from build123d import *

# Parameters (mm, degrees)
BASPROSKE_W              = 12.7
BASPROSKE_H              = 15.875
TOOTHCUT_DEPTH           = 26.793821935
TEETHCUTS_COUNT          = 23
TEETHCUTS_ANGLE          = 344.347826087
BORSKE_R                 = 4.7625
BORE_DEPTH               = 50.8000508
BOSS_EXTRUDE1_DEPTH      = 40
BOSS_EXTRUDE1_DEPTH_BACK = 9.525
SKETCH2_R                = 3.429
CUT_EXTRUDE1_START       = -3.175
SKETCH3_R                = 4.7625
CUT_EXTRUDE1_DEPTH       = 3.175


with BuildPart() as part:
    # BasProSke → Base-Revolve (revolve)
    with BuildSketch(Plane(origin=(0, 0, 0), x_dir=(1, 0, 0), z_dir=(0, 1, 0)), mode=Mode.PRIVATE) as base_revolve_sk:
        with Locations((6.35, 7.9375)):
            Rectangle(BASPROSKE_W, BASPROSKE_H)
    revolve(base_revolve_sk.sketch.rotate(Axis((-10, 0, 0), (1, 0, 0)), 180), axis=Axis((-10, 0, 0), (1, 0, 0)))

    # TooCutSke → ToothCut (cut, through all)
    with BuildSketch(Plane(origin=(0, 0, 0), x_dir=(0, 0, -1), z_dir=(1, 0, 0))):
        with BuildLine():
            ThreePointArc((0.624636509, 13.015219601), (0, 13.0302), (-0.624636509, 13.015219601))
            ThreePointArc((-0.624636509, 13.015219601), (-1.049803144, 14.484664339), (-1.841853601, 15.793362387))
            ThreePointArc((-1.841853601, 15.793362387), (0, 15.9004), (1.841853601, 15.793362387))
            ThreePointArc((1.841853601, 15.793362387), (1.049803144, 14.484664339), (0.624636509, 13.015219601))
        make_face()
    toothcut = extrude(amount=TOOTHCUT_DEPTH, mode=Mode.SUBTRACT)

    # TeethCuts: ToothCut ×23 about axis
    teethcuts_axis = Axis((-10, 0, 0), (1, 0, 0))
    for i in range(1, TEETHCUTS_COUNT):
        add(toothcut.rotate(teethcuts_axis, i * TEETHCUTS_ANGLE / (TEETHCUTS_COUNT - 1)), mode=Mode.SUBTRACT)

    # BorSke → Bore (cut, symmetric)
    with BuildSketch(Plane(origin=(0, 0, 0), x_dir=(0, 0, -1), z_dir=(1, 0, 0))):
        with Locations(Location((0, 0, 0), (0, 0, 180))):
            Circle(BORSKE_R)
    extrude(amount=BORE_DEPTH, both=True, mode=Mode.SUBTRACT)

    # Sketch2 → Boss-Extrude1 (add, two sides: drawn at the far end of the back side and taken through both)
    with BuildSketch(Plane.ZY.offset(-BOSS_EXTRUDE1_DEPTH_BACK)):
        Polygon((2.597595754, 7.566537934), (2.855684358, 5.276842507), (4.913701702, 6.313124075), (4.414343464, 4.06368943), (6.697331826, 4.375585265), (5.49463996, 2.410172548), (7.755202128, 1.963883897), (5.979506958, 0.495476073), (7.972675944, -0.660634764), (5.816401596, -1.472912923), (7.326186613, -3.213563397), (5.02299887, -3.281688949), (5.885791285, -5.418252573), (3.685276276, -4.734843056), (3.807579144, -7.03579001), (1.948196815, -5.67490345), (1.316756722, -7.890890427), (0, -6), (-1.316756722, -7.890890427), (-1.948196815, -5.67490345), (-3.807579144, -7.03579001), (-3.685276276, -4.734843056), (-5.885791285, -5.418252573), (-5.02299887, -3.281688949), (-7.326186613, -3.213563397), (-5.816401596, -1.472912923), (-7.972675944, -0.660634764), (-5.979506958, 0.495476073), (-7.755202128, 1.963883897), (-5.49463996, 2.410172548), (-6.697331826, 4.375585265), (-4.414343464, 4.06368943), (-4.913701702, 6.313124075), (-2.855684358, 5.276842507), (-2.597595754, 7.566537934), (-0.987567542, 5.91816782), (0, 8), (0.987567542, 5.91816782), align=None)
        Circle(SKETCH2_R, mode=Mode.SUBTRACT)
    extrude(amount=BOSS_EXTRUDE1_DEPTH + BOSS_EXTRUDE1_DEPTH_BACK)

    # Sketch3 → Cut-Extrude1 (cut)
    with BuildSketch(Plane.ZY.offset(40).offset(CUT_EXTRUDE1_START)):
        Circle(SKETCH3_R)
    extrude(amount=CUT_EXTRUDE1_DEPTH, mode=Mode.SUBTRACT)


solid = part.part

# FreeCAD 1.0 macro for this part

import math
import FreeCAD as App
import Part
import Sketcher
from FreeCAD import Vector
Q = App.Units.Quantity

doc = App.newDocument("Part")
params = doc.addObject("Spreadsheet::Sheet", "Params")
for row, (alias, value) in enumerate([
    ("sketch1_width", "0.5 in"),
    ("sketch1_height", "0.625 in"),
    ("revolution_angle", "360 deg"),
    ("sketch2_radius", "0.23 in"),
    ("sketch2_radius2", "0.513 in"),
    ("sketch2_radius3", "0.626 in"),
    ("sketch3_diameter", "0.375 in"),
    ("pocket2_length", "101.600102 mm"),
    ("sketch4_diameter", "0.27 in"),
    ("pad1_length", "40 mm"),
    ("pad1_length2", "0.375 in"),
    ("sketch5_diameter", "0.375 in"),
    ("pocket3_length", "0.125 in"),
], start=1):
    params.set(f"A{row}", alias)
    params.set(f"B{row}", "=" + value)
    params.setAlias(f"B{row}", alias)

body = doc.addObject("PartDesign::Body", "Body")

# Sketch on XZ plane
sketch1 = body.newObject("Sketcher::SketchObject", "Sketch")
sketch1.AttachmentSupport = (doc.getObject("XZ_Plane"), [""])
sketch1.MapMode = "FlatFace"
sketch1.addGeometry(Part.LineSegment(Vector(0, -16, 0), Vector(0, 0, 0)), False)
sketch1.addGeometry(Part.LineSegment(Vector(0, 0, 0), Vector(13, 0, 0)), False)
sketch1.addGeometry(Part.LineSegment(Vector(13, 0, 0), Vector(13, -16, 0)), False)
sketch1.addGeometry(Part.LineSegment(Vector(13, -16, 0), Vector(0, -16, 0)), False)
sketch1.addConstraint(Sketcher.Constraint("Coincident", 0, 2, 1, 1))
sketch1.addConstraint(Sketcher.Constraint("Coincident", 1, 2, 2, 1))
sketch1.addConstraint(Sketcher.Constraint("Coincident", 2, 2, 3, 1))
sketch1.addConstraint(Sketcher.Constraint("Coincident", 3, 2, 0, 1))
sketch1.addConstraint(Sketcher.Constraint("Vertical", 0))
sketch1.addConstraint(Sketcher.Constraint("Horizontal", 1))
sketch1.addConstraint(Sketcher.Constraint("Vertical", 2))
sketch1.addConstraint(Sketcher.Constraint("Horizontal", 3))
sketch1.addConstraint(Sketcher.Constraint("Coincident", 0, 2, -1, 1))
sketch1.addConstraint(Sketcher.Constraint("DistanceX", 1, 1, 1, 2, Q("0.5 in")))
sketch1.addConstraint(Sketcher.Constraint("DistanceY", 0, 1, 0, 2, Q("0.625 in")))
sketch1.setExpression("Constraints[9]", "Params.sketch1_width")
sketch1.setExpression("Constraints[10]", "Params.sketch1_height")
revolution = body.newObject("PartDesign::Revolution", "Revolution")
revolution.Profile = sketch1
revolution.ReferenceAxis = (sketch1, ["H_Axis"])
revolution.setExpression("Angle", "Params.revolution_angle")

# Sketch on YZ plane
sketch2 = body.newObject("Sketcher::SketchObject", "Sketch001")
sketch2.AttachmentSupport = (doc.getObject("YZ_Plane"), [""])
sketch2.MapMode = "FlatFace"
sketch2.addGeometry(Part.ArcOfCircle(Part.Circle(Vector(0, 0, 0), Vector(0, 0, 1), 13), math.radians(-2.75), math.radians(2.75)), False)
sketch2.addGeometry(Part.ArcOfCircle(Part.Circle(Vector(12.1, -6.4, 0), Vector(0, 0, 1), 5.8), math.radians(51), math.radians(81)), False)
sketch2.addGeometry(Part.ArcOfCircle(Part.Circle(Vector(0, 0, 0), Vector(0, 0, 1), 15.9), math.radians(-6.65), math.radians(6.65)), False)
sketch2.addGeometry(Part.ArcOfCircle(Part.Circle(Vector(12.1, 6.4, 0), Vector(0, 0, 1), 5.8), math.radians(-81), math.radians(-51)), False)
sketch2.addConstraint(Sketcher.Constraint("Coincident", 0, 1, 1, 2))
sketch2.addConstraint(Sketcher.Constraint("Coincident", 1, 1, 2, 1))
sketch2.addConstraint(Sketcher.Constraint("Coincident", 2, 2, 3, 2))
sketch2.addConstraint(Sketcher.Constraint("Coincident", 3, 1, 0, 2))
sketch2.addConstraint(Sketcher.Constraint("Coincident", 0, 3, -1, 1))
sketch2.addConstraint(Sketcher.Constraint("Coincident", 2, 3, -1, 1))
sketch2.addConstraint(Sketcher.Constraint("Equal", 1, 3))
sketch2.addConstraint(Sketcher.Constraint("Symmetric", 1, 3, 3, 3, -1))
sketch2.addConstraint(Sketcher.Constraint("Radius", 1, Q("0.23 in")))
sketch2.addConstraint(Sketcher.Constraint("Radius", 0, Q("0.513 in")))
sketch2.addConstraint(Sketcher.Constraint("Radius", 2, Q("0.626 in")))
sketch2.addConstraint(Sketcher.Constraint("DistanceY", 1, 3, 0, 1, 5.776098))
sketch2.addConstraint(Sketcher.Constraint("DistanceX", -1, 1, 0, 1, 13.01522))
sketch2.setExpression("Constraints[8]", "Params.sketch2_radius")
sketch2.setExpression("Constraints[9]", "Params.sketch2_radius2")
sketch2.setExpression("Constraints[10]", "Params.sketch2_radius3")
pocket1 = body.newObject("PartDesign::Pocket", "Pocket")
pocket1.Profile = sketch2
pocket1.Type = "ThroughAll"
pocket1.Reversed = True
doc.recompute()

polarpattern = body.newObject("PartDesign::PolarPattern", "PolarPattern")
polarpattern.Originals = [pocket1]
polarpattern.Axis = (doc.getObject("X_Axis"), [""])
polarpattern.Angle = 360
polarpattern.Occurrences = 23
body.Tip = polarpattern

# Sketch on YZ plane
sketch3 = body.newObject("Sketcher::SketchObject", "Sketch002")
sketch3.AttachmentSupport = (doc.getObject("YZ_Plane"), [""])
sketch3.MapMode = "FlatFace"
sketch3.addGeometry(Part.Circle(Vector(0, 0, 0), Vector(0, 0, 1), 4.8), False)
sketch3.addConstraint(Sketcher.Constraint("Coincident", 0, 3, -1, 1))
sketch3.addConstraint(Sketcher.Constraint("Diameter", 0, Q("0.375 in")))
sketch3.setExpression("Constraints[1]", "Params.sketch3_diameter")
pocket2 = body.newObject("PartDesign::Pocket", "Pocket001")
pocket2.Profile = sketch3
pocket2.setExpression("Length", "Params.pocket2_length")
pocket2.Midplane = True

# Sketch on YZ plane
sketch4 = body.newObject("Sketcher::SketchObject", "Sketch003")
sketch4.AttachmentSupport = (doc.getObject("YZ_Plane"), [""])
sketch4.MapMode = "FlatFace"
sketch4.addGeometry(Part.LineSegment(Vector(5.276843, 2.855684, 0), Vector(7.566538, 2.597596, 0)), False)
sketch4.addGeometry(Part.LineSegment(Vector(7.566538, 2.597596, 0), Vector(5.918168, 0.987568, 0)), False)
sketch4.addGeometry(Part.LineSegment(Vector(5.918168, 0.987568, 0), Vector(8, 0, 0)), False)
sketch4.addGeometry(Part.LineSegment(Vector(8, 0, 0), Vector(5.918168, -0.987568, 0)), False)
sketch4.addGeometry(Part.LineSegment(Vector(5.918168, -0.987568, 0), Vector(7.566538, -2.597596, 0)), False)
sketch4.addGeometry(Part.LineSegment(Vector(7.566538, -2.597596, 0), Vector(5.276843, -2.855684, 0)), False)
sketch4.addGeometry(Part.LineSegment(Vector(5.276843, -2.855684, 0), Vector(6.313124, -4.913702, 0)), False)
sketch4.addGeometry(Part.LineSegment(Vector(6.313124, -4.913702, 0), Vector(4.063689, -4.414343, 0)), False)
sketch4.addGeometry(Part.LineSegment(Vector(4.063689, -4.414343, 0), Vector(4.375585, -6.697332, 0)), False)
sketch4.addGeometry(Part.LineSegment(Vector(4.375585, -6.697332, 0), Vector(2.410173, -5.49464, 0)), False)
sketch4.addGeometry(Part.LineSegment(Vector(2.410173, -5.49464, 0), Vector(1.963884, -7.755202, 0)), False)
sketch4.addGeometry(Part.LineSegment(Vector(1.963884, -7.755202, 0), Vector(0.495476, -5.979507, 0)), False)
sketch4.addGeometry(Part.LineSegment(Vector(0.495476, -5.979507, 0), Vector(-0.660635, -7.972676, 0)), False)
sketch4.addGeometry(Part.LineSegment(Vector(-0.660635, -7.972676, 0), Vector(-1.472913, -5.816402, 0)), False)
sketch4.addGeometry(Part.LineSegment(Vector(-1.472913, -5.816402, 0), Vector(-3.213563, -7.326187, 0)), False)
sketch4.addGeometry(Part.LineSegment(Vector(-3.213563, -7.326187, 0), Vector(-3.281689, -5.022999, 0)), False)
sketch4.addGeometry(Part.LineSegment(Vector(-3.281689, -5.022999, 0), Vector(-5.418253, -5.885791, 0)), False)
sketch4.addGeometry(Part.LineSegment(Vector(-5.418253, -5.885791, 0), Vector(-4.734843, -3.685276, 0)), False)
sketch4.addGeometry(Part.LineSegment(Vector(-4.734843, -3.685276, 0), Vector(-7.03579, -3.807579, 0)), False)
sketch4.addGeometry(Part.LineSegment(Vector(-7.03579, -3.807579, 0), Vector(-5.674903, -1.948197, 0)), False)
sketch4.addGeometry(Part.LineSegment(Vector(-5.674903, -1.948197, 0), Vector(-7.89089, -1.316757, 0)), False)
sketch4.addGeometry(Part.LineSegment(Vector(-7.89089, -1.316757, 0), Vector(-6, 0, 0)), False)
sketch4.addGeometry(Part.LineSegment(Vector(-6, 0, 0), Vector(-7.89089, 1.316757, 0)), False)
sketch4.addGeometry(Part.LineSegment(Vector(-7.89089, 1.316757, 0), Vector(-5.674903, 1.948197, 0)), False)
sketch4.addGeometry(Part.LineSegment(Vector(-5.674903, 1.948197, 0), Vector(-7.03579, 3.807579, 0)), False)
sketch4.addGeometry(Part.LineSegment(Vector(-7.03579, 3.807579, 0), Vector(-4.734843, 3.685276, 0)), False)
sketch4.addGeometry(Part.LineSegment(Vector(-4.734843, 3.685276, 0), Vector(-5.418253, 5.885791, 0)), False)
sketch4.addGeometry(Part.LineSegment(Vector(-5.418253, 5.885791, 0), Vector(-3.281689, 5.022999, 0)), False)
sketch4.addGeometry(Part.LineSegment(Vector(-3.281689, 5.022999, 0), Vector(-3.213563, 7.326187, 0)), False)
sketch4.addGeometry(Part.LineSegment(Vector(-3.213563, 7.326187, 0), Vector(-1.472913, 5.816402, 0)), False)
sketch4.addGeometry(Part.LineSegment(Vector(-1.472913, 5.816402, 0), Vector(-0.660635, 7.972676, 0)), False)
sketch4.addGeometry(Part.LineSegment(Vector(-0.660635, 7.972676, 0), Vector(0.495476, 5.979507, 0)), False)
sketch4.addGeometry(Part.LineSegment(Vector(0.495476, 5.979507, 0), Vector(1.963884, 7.755202, 0)), False)
sketch4.addGeometry(Part.LineSegment(Vector(1.963884, 7.755202, 0), Vector(2.410173, 5.49464, 0)), False)
sketch4.addGeometry(Part.LineSegment(Vector(2.410173, 5.49464, 0), Vector(4.375585, 6.697332, 0)), False)
sketch4.addGeometry(Part.LineSegment(Vector(4.375585, 6.697332, 0), Vector(4.063689, 4.414343, 0)), False)
sketch4.addGeometry(Part.LineSegment(Vector(4.063689, 4.414343, 0), Vector(6.313124, 4.913702, 0)), False)
sketch4.addGeometry(Part.LineSegment(Vector(6.313124, 4.913702, 0), Vector(5.276843, 2.855684, 0)), False)
sketch4.addGeometry(Part.Circle(Vector(0, 0, 0), Vector(0, 0, 1), 3.429), False)
sketch4.addConstraint(Sketcher.Constraint("Coincident", 0, 2, 1, 1))
sketch4.addConstraint(Sketcher.Constraint("Coincident", 1, 2, 2, 1))
sketch4.addConstraint(Sketcher.Constraint("Coincident", 2, 2, 3, 1))
sketch4.addConstraint(Sketcher.Constraint("Coincident", 3, 2, 4, 1))
sketch4.addConstraint(Sketcher.Constraint("Coincident", 4, 2, 5, 1))
sketch4.addConstraint(Sketcher.Constraint("Coincident", 5, 2, 6, 1))
sketch4.addConstraint(Sketcher.Constraint("Coincident", 6, 2, 7, 1))
sketch4.addConstraint(Sketcher.Constraint("Coincident", 7, 2, 8, 1))
sketch4.addConstraint(Sketcher.Constraint("Coincident", 8, 2, 9, 1))
sketch4.addConstraint(Sketcher.Constraint("Coincident", 9, 2, 10, 1))
sketch4.addConstraint(Sketcher.Constraint("Coincident", 10, 2, 11, 1))
sketch4.addConstraint(Sketcher.Constraint("Coincident", 11, 2, 12, 1))
sketch4.addConstraint(Sketcher.Constraint("Coincident", 12, 2, 13, 1))
sketch4.addConstraint(Sketcher.Constraint("Coincident", 13, 2, 14, 1))
sketch4.addConstraint(Sketcher.Constraint("Coincident", 14, 2, 15, 1))
sketch4.addConstraint(Sketcher.Constraint("Coincident", 15, 2, 16, 1))
sketch4.addConstraint(Sketcher.Constraint("Coincident", 16, 2, 17, 1))
sketch4.addConstraint(Sketcher.Constraint("Coincident", 17, 2, 18, 1))
sketch4.addConstraint(Sketcher.Constraint("Coincident", 18, 2, 19, 1))
sketch4.addConstraint(Sketcher.Constraint("Coincident", 19, 2, 20, 1))
sketch4.addConstraint(Sketcher.Constraint("Coincident", 20, 2, 21, 1))
sketch4.addConstraint(Sketcher.Constraint("Coincident", 21, 2, 22, 1))
sketch4.addConstraint(Sketcher.Constraint("Coincident", 22, 2, 23, 1))
sketch4.addConstraint(Sketcher.Constraint("Coincident", 23, 2, 24, 1))
sketch4.addConstraint(Sketcher.Constraint("Coincident", 24, 2, 25, 1))
sketch4.addConstraint(Sketcher.Constraint("Coincident", 25, 2, 26, 1))
sketch4.addConstraint(Sketcher.Constraint("Coincident", 26, 2, 27, 1))
sketch4.addConstraint(Sketcher.Constraint("Coincident", 27, 2, 28, 1))
sketch4.addConstraint(Sketcher.Constraint("Coincident", 28, 2, 29, 1))
sketch4.addConstraint(Sketcher.Constraint("Coincident", 29, 2, 30, 1))
sketch4.addConstraint(Sketcher.Constraint("Coincident", 30, 2, 31, 1))
sketch4.addConstraint(Sketcher.Constraint("Coincident", 31, 2, 32, 1))
sketch4.addConstraint(Sketcher.Constraint("Coincident", 32, 2, 33, 1))
sketch4.addConstraint(Sketcher.Constraint("Coincident", 33, 2, 34, 1))
sketch4.addConstraint(Sketcher.Constraint("Coincident", 34, 2, 35, 1))
sketch4.addConstraint(Sketcher.Constraint("Coincident", 35, 2, 36, 1))
sketch4.addConstraint(Sketcher.Constraint("Coincident", 36, 2, 37, 1))
sketch4.addConstraint(Sketcher.Constraint("Coincident", 37, 2, 0, 1))
sketch4.addConstraint(Sketcher.Constraint("Coincident", 38, 3, -1, 1))
sketch4.addConstraint(Sketcher.Constraint("PointOnObject", 2, 2, -1))
sketch4.addConstraint(Sketcher.Constraint("PointOnObject", 21, 2, -1))
sketch4.addConstraint(Sketcher.Constraint("Diameter", 38, Q("0.27 in")))
sketch4.addConstraint(Sketcher.Constraint("DistanceX", -1, 1, 2, 2, 8.0))
sketch4.addConstraint(Sketcher.Constraint("DistanceY", 6, 2, -1, 1, 4.913702))
sketch4.addConstraint(Sketcher.Constraint("DistanceY", 13, 2, -1, 1, 5.816402))
sketch4.addConstraint(Sketcher.Constraint("DistanceY", 15, 2, -1, 1, 5.022999))
sketch4.addConstraint(Sketcher.Constraint("DistanceX", 21, 2, -1, 1, 6.0))
sketch4.addConstraint(Sketcher.Constraint("DistanceY", -1, 1, 27, 2, 5.022999))
sketch4.addConstraint(Sketcher.Constraint("DistanceY", -1, 1, 29, 2, 5.816402))
sketch4.addConstraint(Sketcher.Constraint("DistanceY", -1, 1, 36, 2, 4.913702))
sketch4.addConstraint(Sketcher.Constraint("DistanceX", 10, 2, 8, 2, 2.411701))
sketch4.addConstraint(Sketcher.Constraint("DistanceY", 10, 2, 6, 2, 2.8415))
sketch4.addConstraint(Sketcher.Constraint("DistanceX", 18, 2, 15, 2, 3.754101))
sketch4.addConstraint(Sketcher.Constraint("DistanceX", 20, 2, 18, 2, 0.8551))
sketch4.addConstraint(Sketcher.Constraint("DistanceX", 22, 2, 18, 2, 0.8551))
sketch4.addConstraint(Sketcher.Constraint("DistanceX", 22, 2, 24, 2, 0.8551))
sketch4.addConstraint(Sketcher.Constraint("DistanceX", 24, 2, 27, 2, 3.754101))
sketch4.addConstraint(Sketcher.Constraint("DistanceY", 25, 2, 30, 2, 4.2874))
sketch4.addConstraint(Sketcher.Constraint("DistanceY", 29, 2, 32, 2, 1.938801))
sketch4.addConstraint(Sketcher.Constraint("DistanceX", 32, 2, 34, 2, 2.411701))
sketch4.addConstraint(Sketcher.Constraint("DistanceX", -1, 1, 7, 2, 4.063689))
sketch4.addConstraint(Sketcher.Constraint("DistanceY", 8, 2, -1, 1, 6.697332))
sketch4.addConstraint(Sketcher.Constraint("DistanceY", 9, 2, -1, 1, 5.49464))
sketch4.addConstraint(Sketcher.Constraint("DistanceX", 15, 2, -1, 1, 3.281689))
sketch4.addConstraint(Sketcher.Constraint("DistanceY", 16, 2, -1, 1, 5.885791))
sketch4.addConstraint(Sketcher.Constraint("DistanceY", 18, 2, -1, 1, 3.807579))
sketch4.addConstraint(Sketcher.Constraint("DistanceY", -1, 1, 24, 2, 3.807579))
sketch4.addConstraint(Sketcher.Constraint("DistanceY", -1, 1, 26, 2, 5.885791))
sketch4.addConstraint(Sketcher.Constraint("DistanceY", -1, 1, 33, 2, 5.49464))
sketch4.addConstraint(Sketcher.Constraint("DistanceY", -1, 1, 34, 2, 6.697332))
sketch4.addConstraint(Sketcher.Constraint("DistanceX", -1, 1, 35, 2, 4.063689))
sketch4.addConstraint(Sketcher.Constraint("DistanceX", 1, 2, 0, 2, 1.64837))
sketch4.addConstraint(Sketcher.Constraint("DistanceY", 1, 2, 0, 2, 1.610028))
sketch4.addConstraint(Sketcher.Constraint("DistanceX", 3, 2, 0, 2, 1.64837))
sketch4.addConstraint(Sketcher.Constraint("DistanceX", 3, 2, 4, 2, 1.64837))
sketch4.addConstraint(Sketcher.Constraint("DistanceY", 4, 2, 3, 2, 1.610028))
sketch4.addConstraint(Sketcher.Constraint("DistanceY", 4, 2, 0, 2, 5.195192))
sketch4.addConstraint(Sketcher.Constraint("DistanceY", 5, 2, 4, 2, 0.258089))
sketch4.addConstraint(Sketcher.Constraint("DistanceX", 5, 2, 6, 2, 1.036282))
sketch4.addConstraint(Sketcher.Constraint("DistanceY", 6, 2, 1, 2, 5.901269))
sketch4.addConstraint(Sketcher.Constraint("DistanceY", 7, 2, 5, 2, 1.558659))
sketch4.addConstraint(Sketcher.Constraint("DistanceX", 7, 2, 3, 2, 1.854478))
sketch4.addConstraint(Sketcher.Constraint("DistanceX", 8, 2, 6, 2, 1.937539))
sketch4.addConstraint(Sketcher.Constraint("DistanceX", 9, 2, 5, 2, 2.86667))
sketch4.addConstraint(Sketcher.Constraint("DistanceX", 11, 2, 8, 2, 3.880109))
sketch4.addConstraint(Sketcher.Constraint("DistanceX", 12, 2, 11, 2, 1.156111))
sketch4.addConstraint(Sketcher.Constraint("DistanceY", 12, 2, 11, 2, 1.993169))
sketch4.addConstraint(Sketcher.Constraint("DistanceX", 13, 2, 11, 2, 1.968389))
sketch4.addConstraint(Sketcher.Constraint("DistanceX", 14, 2, 13, 2, 1.74065))
sketch4.addConstraint(Sketcher.Constraint("DistanceY", 12, 2, 14, 2, 0.646489))
sketch4.addConstraint(Sketcher.Constraint("DistanceY", 11, 2, 15, 2, 0.956508))
sketch4.addConstraint(Sketcher.Constraint("DistanceX", 15, 2, 9, 2, 5.691861))
sketch4.addConstraint(Sketcher.Constraint("DistanceX", 16, 2, 14, 2, 2.204689))
sketch4.addConstraint(Sketcher.Constraint("DistanceX", 16, 2, 17, 2, 0.68341))
sketch4.addConstraint(Sketcher.Constraint("DistanceY", 14, 2, 17, 2, 3.64091))
sketch4.addConstraint(Sketcher.Constraint("DistanceX", 19, 2, 17, 2, 0.94006))
sketch4.addConstraint(Sketcher.Constraint("DistanceY", 17, 2, 19, 2, 1.737079))
sketch4.addConstraint(Sketcher.Constraint("DistanceY", 19, 2, 20, 2, 0.63144))
sketch4.addConstraint(Sketcher.Constraint("DistanceY", 22, 2, 23, 2, 0.63144))
sketch4.addConstraint(Sketcher.Constraint("DistanceX", 23, 2, 17, 2, 0.94006))
sketch4.addConstraint(Sketcher.Constraint("DistanceX", 23, 2, 25, 2, 0.94006))
sketch4.addConstraint(Sketcher.Constraint("DistanceY", 23, 2, 25, 2, 1.737079))
sketch4.addConstraint(Sketcher.Constraint("DistanceX", 26, 2, 25, 2, 0.68341))
sketch4.addConstraint(Sketcher.Constraint("DistanceX", 26, 2, 28, 2, 2.204689))
sketch4.addConstraint(Sketcher.Constraint("DistanceY", 25, 2, 28, 2, 3.64091))
sketch4.addConstraint(Sketcher.Constraint("DistanceX", 28, 2, 29, 2, 1.74065))
sketch4.addConstraint(Sketcher.Constraint("DistanceX", 29, 2, 30, 2, 0.812278))
sketch4.addConstraint(Sketcher.Constraint("DistanceX", 29, 2, 31, 2, 1.968389))
sketch4.addConstraint(Sketcher.Constraint("DistanceY", 31, 2, 30, 2, 1.993169))
sketch4.addConstraint(Sketcher.Constraint("DistanceY", 27, 2, 31, 2, 0.956508))
sketch4.addConstraint(Sketcher.Constraint("DistanceX", 30, 2, 32, 2, 2.624519))
sketch4.addConstraint(Sketcher.Constraint("DistanceX", 32, 2, 33, 2, 0.446289))
sketch4.addConstraint(Sketcher.Constraint("DistanceY", 35, 2, 34, 2, 2.282988))
sketch4.addConstraint(Sketcher.Constraint("DistanceX", 34, 2, 36, 2, 1.937539))
sketch4.addConstraint(Sketcher.Constraint("DistanceY", 37, 2, 35, 2, 1.558659))
sketch4.addConstraint(Sketcher.Constraint("DistanceX", 37, 2, 36, 2, 1.036282))
sketch4.setExpression("Constraints[41]", "Params.sketch4_diameter")
pad1 = body.newObject("PartDesign::Pad", "Pad")
pad1.Profile = sketch4
pad1.Type = "TwoLengths"
pad1.setExpression("Length", "Params.pad1_length")
pad1.setExpression("Length2", "Params.pad1_length2")
pad1.Reversed = True

# Sketch on YZ plane
sketch5 = body.newObject("Sketcher::SketchObject", "Sketch004")
sketch5.AttachmentSupport = (doc.getObject("YZ_Plane"), [""])
sketch5.MapMode = "FlatFace"
sketch5.AttachmentOffset = App.Placement(Vector(0, 0, -36.825), App.Rotation())
sketch5.addGeometry(Part.Circle(Vector(0, 0, 0), Vector(0, 0, 1), 4.8), False)
sketch5.addConstraint(Sketcher.Constraint("Coincident", 0, 3, -1, 1))
sketch5.addConstraint(Sketcher.Constraint("Diameter", 0, Q("0.375 in")))
sketch5.setExpression("Constraints[1]", "Params.sketch5_diameter")
pocket3 = body.newObject("PartDesign::Pocket", "Pocket002")
pocket3.Profile = sketch5
pocket3.setExpression("Length", "Params.pocket3_length")

doc.recompute()
